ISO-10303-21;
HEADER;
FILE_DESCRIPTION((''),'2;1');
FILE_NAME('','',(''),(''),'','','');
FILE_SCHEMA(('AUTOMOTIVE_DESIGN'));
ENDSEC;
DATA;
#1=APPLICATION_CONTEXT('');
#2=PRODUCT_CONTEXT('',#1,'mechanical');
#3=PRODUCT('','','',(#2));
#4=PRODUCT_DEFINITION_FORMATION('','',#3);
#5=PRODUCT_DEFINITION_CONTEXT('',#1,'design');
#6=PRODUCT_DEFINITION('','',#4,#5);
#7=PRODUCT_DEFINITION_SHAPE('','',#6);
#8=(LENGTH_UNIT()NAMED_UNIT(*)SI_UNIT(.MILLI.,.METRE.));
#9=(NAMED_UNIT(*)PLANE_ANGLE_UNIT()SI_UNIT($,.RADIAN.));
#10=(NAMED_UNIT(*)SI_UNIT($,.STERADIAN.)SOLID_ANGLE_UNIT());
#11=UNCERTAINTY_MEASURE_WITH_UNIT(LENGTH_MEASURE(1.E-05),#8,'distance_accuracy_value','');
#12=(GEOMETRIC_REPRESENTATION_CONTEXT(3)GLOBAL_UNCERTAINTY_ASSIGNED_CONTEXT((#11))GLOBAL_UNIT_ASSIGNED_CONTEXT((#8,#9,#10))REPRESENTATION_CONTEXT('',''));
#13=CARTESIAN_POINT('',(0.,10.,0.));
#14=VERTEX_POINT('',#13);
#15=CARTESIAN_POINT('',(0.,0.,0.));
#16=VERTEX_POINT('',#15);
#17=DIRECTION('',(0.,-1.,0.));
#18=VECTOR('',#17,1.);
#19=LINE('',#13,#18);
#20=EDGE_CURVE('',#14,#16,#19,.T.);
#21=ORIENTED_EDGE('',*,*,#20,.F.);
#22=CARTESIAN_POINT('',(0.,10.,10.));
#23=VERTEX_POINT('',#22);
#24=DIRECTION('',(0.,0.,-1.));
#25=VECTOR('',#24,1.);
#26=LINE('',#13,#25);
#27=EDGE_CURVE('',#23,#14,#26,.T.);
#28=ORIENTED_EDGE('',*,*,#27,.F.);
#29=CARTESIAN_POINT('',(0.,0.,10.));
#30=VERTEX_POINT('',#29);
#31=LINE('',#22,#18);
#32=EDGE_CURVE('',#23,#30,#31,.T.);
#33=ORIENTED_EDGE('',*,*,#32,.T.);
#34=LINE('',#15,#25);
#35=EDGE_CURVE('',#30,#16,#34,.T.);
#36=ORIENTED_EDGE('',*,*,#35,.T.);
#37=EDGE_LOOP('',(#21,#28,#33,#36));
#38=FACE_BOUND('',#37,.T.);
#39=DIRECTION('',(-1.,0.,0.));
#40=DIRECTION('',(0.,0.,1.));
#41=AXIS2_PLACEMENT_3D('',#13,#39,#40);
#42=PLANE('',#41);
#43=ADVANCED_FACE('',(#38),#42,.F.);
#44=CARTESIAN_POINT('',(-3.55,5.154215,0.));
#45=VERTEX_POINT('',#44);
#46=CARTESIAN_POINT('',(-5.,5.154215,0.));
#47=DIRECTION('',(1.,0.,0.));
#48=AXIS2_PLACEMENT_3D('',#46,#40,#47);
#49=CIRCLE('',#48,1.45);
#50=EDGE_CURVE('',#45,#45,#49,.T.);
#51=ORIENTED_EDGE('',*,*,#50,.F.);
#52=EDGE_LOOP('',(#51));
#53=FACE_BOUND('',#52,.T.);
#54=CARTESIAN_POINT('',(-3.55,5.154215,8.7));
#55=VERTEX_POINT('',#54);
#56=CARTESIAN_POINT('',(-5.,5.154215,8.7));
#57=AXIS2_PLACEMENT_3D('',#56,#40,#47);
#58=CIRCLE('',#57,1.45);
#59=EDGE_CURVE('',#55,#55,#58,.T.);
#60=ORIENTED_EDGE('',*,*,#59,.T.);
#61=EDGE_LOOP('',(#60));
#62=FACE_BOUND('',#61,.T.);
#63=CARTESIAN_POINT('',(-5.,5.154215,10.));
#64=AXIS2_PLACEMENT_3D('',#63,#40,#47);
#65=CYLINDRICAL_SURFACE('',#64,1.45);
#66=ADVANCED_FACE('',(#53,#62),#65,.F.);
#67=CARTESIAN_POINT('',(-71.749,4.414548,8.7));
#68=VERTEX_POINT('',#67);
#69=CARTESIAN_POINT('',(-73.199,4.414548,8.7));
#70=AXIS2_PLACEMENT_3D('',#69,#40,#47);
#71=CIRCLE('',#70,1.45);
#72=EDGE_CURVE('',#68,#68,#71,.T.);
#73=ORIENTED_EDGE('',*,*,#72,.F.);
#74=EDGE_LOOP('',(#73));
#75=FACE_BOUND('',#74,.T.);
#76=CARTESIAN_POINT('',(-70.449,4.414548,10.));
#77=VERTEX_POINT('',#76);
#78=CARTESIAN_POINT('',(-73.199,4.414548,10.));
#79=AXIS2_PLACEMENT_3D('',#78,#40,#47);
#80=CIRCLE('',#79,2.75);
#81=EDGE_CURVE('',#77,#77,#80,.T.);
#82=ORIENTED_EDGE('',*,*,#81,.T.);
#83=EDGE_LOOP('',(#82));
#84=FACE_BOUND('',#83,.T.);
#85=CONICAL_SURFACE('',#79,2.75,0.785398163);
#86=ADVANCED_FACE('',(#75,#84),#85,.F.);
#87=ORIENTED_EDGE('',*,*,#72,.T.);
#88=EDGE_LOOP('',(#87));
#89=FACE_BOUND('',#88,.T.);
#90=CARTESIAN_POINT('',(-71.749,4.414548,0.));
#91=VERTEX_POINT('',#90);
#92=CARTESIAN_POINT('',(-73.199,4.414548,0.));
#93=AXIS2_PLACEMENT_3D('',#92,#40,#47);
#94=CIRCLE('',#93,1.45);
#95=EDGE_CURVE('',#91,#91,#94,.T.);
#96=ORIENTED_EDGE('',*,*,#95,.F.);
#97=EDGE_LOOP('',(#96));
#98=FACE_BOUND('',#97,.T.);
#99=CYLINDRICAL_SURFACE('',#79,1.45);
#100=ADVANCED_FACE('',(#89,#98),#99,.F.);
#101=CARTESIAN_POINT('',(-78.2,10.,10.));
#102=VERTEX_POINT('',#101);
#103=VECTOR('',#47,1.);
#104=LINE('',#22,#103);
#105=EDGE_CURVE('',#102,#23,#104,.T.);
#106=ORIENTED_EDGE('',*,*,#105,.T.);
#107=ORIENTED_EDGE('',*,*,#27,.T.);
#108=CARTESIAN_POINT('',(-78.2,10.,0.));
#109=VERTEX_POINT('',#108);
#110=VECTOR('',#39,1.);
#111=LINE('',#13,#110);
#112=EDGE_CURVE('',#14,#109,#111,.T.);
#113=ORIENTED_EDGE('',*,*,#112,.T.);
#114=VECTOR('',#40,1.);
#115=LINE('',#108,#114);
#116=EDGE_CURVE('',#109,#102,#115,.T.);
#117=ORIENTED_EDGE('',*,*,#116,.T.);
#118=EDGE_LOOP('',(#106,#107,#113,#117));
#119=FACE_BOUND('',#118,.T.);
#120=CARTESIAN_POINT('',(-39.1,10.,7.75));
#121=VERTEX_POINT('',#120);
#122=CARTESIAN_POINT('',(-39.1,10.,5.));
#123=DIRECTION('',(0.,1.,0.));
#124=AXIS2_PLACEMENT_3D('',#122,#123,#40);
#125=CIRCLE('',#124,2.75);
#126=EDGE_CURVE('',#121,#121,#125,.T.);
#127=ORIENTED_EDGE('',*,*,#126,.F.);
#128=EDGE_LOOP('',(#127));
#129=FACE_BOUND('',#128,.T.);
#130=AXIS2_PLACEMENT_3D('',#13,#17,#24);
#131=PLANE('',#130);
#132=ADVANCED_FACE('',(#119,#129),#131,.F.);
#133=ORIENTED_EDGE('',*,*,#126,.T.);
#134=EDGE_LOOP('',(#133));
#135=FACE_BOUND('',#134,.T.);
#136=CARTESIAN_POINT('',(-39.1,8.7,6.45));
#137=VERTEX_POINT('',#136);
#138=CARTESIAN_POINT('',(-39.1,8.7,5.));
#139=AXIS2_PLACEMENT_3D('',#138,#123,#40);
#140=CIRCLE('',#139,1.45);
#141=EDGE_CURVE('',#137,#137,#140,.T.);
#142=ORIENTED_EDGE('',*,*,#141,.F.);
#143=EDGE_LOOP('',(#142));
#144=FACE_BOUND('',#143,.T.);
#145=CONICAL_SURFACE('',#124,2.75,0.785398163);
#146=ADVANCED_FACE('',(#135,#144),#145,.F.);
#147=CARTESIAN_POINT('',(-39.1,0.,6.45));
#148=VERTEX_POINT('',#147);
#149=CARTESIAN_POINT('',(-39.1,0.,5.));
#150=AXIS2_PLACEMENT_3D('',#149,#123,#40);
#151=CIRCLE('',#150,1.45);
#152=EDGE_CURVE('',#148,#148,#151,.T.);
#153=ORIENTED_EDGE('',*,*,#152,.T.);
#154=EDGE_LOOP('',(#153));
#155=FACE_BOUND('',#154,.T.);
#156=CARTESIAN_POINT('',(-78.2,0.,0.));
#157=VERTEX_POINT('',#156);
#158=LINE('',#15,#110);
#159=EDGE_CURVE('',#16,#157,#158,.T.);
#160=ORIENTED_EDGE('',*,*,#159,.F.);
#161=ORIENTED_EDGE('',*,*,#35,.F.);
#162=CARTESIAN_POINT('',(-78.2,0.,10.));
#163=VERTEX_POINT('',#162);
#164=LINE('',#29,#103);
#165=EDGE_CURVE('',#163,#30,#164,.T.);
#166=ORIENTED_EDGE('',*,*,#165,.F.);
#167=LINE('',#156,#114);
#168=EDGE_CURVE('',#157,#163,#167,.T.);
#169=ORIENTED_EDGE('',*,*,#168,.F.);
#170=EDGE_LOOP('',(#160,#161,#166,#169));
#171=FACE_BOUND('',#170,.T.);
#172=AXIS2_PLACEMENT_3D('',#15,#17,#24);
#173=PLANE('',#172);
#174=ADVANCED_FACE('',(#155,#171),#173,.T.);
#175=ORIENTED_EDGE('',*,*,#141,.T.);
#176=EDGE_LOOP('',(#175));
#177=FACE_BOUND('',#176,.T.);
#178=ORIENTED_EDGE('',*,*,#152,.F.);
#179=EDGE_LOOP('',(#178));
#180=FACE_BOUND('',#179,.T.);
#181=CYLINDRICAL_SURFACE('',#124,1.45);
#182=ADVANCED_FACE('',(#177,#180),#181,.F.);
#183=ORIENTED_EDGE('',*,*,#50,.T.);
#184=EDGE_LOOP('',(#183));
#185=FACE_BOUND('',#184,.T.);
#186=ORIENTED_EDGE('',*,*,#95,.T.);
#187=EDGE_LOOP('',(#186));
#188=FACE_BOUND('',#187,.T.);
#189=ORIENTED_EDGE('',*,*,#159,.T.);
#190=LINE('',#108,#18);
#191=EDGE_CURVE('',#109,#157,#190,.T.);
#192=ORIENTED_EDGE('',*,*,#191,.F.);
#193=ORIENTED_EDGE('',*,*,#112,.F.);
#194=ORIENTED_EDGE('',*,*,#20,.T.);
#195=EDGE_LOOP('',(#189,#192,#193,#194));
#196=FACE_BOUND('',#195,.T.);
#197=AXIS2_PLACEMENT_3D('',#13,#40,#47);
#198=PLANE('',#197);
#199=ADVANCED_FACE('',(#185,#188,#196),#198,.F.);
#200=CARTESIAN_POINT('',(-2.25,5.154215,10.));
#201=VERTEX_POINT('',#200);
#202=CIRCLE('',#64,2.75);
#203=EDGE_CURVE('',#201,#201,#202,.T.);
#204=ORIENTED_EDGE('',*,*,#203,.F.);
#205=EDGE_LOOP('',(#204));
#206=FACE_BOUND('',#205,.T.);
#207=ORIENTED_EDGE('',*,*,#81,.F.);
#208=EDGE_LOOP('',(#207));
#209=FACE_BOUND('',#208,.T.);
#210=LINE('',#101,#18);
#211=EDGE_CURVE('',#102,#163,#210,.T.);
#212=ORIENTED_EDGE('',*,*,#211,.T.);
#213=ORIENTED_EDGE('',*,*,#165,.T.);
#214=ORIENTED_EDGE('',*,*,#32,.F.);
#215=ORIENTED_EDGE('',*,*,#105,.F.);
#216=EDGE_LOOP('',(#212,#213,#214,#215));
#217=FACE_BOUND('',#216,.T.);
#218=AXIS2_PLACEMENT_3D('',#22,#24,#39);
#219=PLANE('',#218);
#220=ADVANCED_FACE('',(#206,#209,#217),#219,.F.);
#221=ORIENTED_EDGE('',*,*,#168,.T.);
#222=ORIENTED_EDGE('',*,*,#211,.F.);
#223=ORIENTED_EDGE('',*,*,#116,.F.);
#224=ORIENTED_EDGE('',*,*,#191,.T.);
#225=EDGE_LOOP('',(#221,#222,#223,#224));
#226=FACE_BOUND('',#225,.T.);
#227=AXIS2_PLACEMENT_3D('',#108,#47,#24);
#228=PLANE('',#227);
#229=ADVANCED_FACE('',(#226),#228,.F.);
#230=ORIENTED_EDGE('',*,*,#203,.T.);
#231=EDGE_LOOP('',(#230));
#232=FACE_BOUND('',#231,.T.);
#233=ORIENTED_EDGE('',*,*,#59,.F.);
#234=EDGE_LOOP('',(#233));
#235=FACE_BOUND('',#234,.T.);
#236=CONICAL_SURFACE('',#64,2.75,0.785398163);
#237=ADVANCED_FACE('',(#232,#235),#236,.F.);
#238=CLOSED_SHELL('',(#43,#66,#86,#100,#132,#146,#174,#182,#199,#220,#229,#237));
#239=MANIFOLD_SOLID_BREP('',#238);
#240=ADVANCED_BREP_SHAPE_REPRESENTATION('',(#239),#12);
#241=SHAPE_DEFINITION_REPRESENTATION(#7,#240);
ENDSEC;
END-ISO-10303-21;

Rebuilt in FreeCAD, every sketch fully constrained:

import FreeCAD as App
import Part
import Sketcher
from FreeCAD import Vector

doc = App.newDocument("Part")
body = doc.addObject("PartDesign::Body", "Body")

sketch1 = body.newObject("Sketcher::SketchObject", "Sketch")
sketch1.AttachmentSupport = (doc.getObject("XZ_Plane"), [""])
sketch1.MapMode = "FlatFace"
sketch1.addGeometry(Part.LineSegment(Vector(-78, 0, 0), Vector(-78, 10, 0)), False)
sketch1.addGeometry(Part.LineSegment(Vector(-78, 10, 0), Vector(0, 10, 0)), False)
sketch1.addGeometry(Part.LineSegment(Vector(0, 10, 0), Vector(0, 0, 0)), False)
sketch1.addGeometry(Part.LineSegment(Vector(0, 0, 0), Vector(-78, 0, 0)), False)
sketch1.addConstraint(Sketcher.Constraint("Coincident", 0, 2, 1, 1))
sketch1.addConstraint(Sketcher.Constraint("Coincident", 1, 2, 2, 1))
sketch1.addConstraint(Sketcher.Constraint("Coincident", 2, 2, 3, 1))
sketch1.addConstraint(Sketcher.Constraint("Coincident", 3, 2, 0, 1))
sketch1.addConstraint(Sketcher.Constraint("Vertical", 0))
sketch1.addConstraint(Sketcher.Constraint("Horizontal", 1))
sketch1.addConstraint(Sketcher.Constraint("Vertical", 2))
sketch1.addConstraint(Sketcher.Constraint("Horizontal", 3))
sketch1.addConstraint(Sketcher.Constraint("Coincident", 2, 2, -1, 1))
sketch1.addConstraint(Sketcher.Constraint("DistanceY", 0, 1, 0, 2, 10.0))
sketch1.addConstraint(Sketcher.Constraint("DistanceX", 1, 1, 1, 2, 78.2))
pad1 = body.newObject("PartDesign::Pad", "Pad")
pad1.Profile = sketch1
pad1.Length = 10
pad1.Reversed = True

sketch2 = body.newObject("Sketcher::SketchObject", "Sketch001")
sketch2.AttachmentSupport = (doc.getObject("XY_Plane"), [""])
sketch2.MapMode = "FlatFace"
sketch2.AttachmentOffset = App.Placement(Vector(0, 0, 10), App.Rotation())
sketch2.addGeometry(Part.Circle(Vector(-5, 5.2, 0), Vector(0, 0, 1), 1.4), False)
sketch2.addConstraint(Sketcher.Constraint("Diameter", 0, 2.9))
sketch2.addConstraint(Sketcher.Constraint("DistanceX", 0, 3, -1, 1, 5.0))
sketch2.addConstraint(Sketcher.Constraint("DistanceY", -1, 1, 0, 3, 5.154215))
doc.recompute()
hole = body.newObject("PartDesign::Hole", "Hole")
hole.Profile = sketch2
hole.ThreadType = "None"
hole.Diameter = 2.9
hole.DepthType = "ThroughAll"
hole.HoleCutType = "Countersink"
hole.HoleCutDiameter = 5.5
hole.HoleCutCountersinkAngle = 90

sketch3 = body.newObject("Sketcher::SketchObject", "Sketch002")
sketch3.AttachmentSupport = (doc.getObject("XY_Plane"), [""])
sketch3.MapMode = "FlatFace"
sketch3.AttachmentOffset = App.Placement(Vector(0, 0, 10), App.Rotation())
sketch3.addGeometry(Part.Circle(Vector(-73.2, 4.4, 0), Vector(0, 0, 1), 1.4), False)
sketch3.addConstraint(Sketcher.Constraint("Diameter", 0, 2.9))
sketch3.addConstraint(Sketcher.Constraint("DistanceX", 0, 3, -1, 1, 73.199))
sketch3.addConstraint(Sketcher.Constraint("DistanceY", -1, 1, 0, 3, 4.414548))
doc.recompute()
hole2 = body.newObject("PartDesign::Hole", "Hole001")
hole2.Profile = sketch3
hole2.ThreadType = "None"
hole2.Diameter = 2.9
hole2.DepthType = "ThroughAll"
hole2.HoleCutType = "Countersink"
hole2.HoleCutDiameter = 5.5
hole2.HoleCutCountersinkAngle = 90

sketch4 = body.newObject("Sketcher::SketchObject", "Sketch003")
sketch4.AttachmentSupport = (doc.getObject("XZ_Plane"), [""])
sketch4.MapMode = "FlatFace"
sketch4.AttachmentOffset = App.Placement(Vector(0, 0, -10), App.Rotation())
sketch4.addGeometry(Part.Circle(Vector(-39.1, 5, 0), Vector(0, 0, 1), 1.4), False)
sketch4.addConstraint(Sketcher.Constraint("Diameter", 0, 2.9))
sketch4.addConstraint(Sketcher.Constraint("DistanceY", -1, 1, 0, 3, 5.0))
sketch4.addConstraint(Sketcher.Constraint("DistanceX", 0, 3, -1, 1, 39.1))
doc.recompute()
hole3 = body.newObject("PartDesign::Hole", "Hole002")
hole3.Profile = sketch4
hole3.ThreadType = "None"
hole3.Diameter = 2.9
hole3.DepthType = "ThroughAll"
hole3.HoleCutType = "Countersink"
hole3.HoleCutDiameter = 5.5
hole3.HoleCutCountersinkAngle = 90
hole3.Reversed = True

doc.recompute()
